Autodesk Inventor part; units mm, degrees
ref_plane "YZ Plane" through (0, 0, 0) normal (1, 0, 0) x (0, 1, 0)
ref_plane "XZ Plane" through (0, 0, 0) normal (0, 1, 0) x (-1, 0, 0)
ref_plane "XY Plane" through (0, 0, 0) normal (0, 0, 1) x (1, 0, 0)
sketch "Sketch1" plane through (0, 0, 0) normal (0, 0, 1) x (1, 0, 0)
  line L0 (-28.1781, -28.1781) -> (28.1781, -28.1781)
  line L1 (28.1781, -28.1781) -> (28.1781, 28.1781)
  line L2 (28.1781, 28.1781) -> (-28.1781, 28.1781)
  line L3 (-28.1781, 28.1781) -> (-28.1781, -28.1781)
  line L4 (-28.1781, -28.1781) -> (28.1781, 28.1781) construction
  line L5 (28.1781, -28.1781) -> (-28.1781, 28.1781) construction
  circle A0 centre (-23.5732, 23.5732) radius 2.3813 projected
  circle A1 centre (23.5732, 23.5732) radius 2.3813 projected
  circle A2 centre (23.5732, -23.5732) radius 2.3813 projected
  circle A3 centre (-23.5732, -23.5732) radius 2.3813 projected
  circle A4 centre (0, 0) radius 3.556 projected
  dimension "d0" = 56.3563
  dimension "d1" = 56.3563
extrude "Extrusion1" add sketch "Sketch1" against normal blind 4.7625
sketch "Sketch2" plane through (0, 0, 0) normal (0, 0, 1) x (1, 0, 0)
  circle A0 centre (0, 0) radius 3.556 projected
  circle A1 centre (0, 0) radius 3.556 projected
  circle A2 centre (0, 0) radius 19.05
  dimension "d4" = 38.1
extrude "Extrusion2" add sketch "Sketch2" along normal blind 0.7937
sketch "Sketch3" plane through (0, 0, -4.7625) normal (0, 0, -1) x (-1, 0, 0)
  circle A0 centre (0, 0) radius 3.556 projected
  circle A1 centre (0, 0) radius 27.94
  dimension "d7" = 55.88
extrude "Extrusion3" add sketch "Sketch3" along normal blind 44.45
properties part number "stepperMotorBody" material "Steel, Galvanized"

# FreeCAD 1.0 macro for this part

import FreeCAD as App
import Part
import Sketcher

V = App.Vector
Q = App.Units.Quantity


def add_polygon(sketch, points):
    """Adds a closed chain of lines whose ends are joined by coincident constraints."""
    first, n = sketch.GeometryCount, len(points)
    for a, b in zip(points, points[1:] + points[:1]):
        sketch.addGeometry(Part.LineSegment(App.Vector(*a, 0), App.Vector(*b, 0)), False)
    for i in range(n):
        sketch.addConstraint(Sketcher.Constraint("Coincident", first + i, 2, first + (i + 1) % n, 1))

doc = App.newDocument("Part")
body = doc.addObject("PartDesign::Body", "Body")

# Sketch on XY plane
sketch1 = doc.addObject("Sketcher::SketchObject", "Sketch")
body.addObject(sketch1)
sketch1.AttachmentSupport = (doc.XY_Plane, [""])
sketch1.MapMode = "FlatFace"
add_polygon(sketch1, [(-28.1781, 28.1781), (-28.1781, -28.1781), (28.1781, -28.1781), (28.1781, 28.1781)])  # lines 0-3
sketch1.addGeometry(Part.Circle(V(-23.5732, -23.5732, 0), V(0, 0, 1), 2.3813), False)  # 4
sketch1.addGeometry(Part.Circle(V(23.5732, -23.5732, 0), V(0, 0, 1), 2.3813), False)  # 5
sketch1.addGeometry(Part.Circle(V(-23.5732, 23.5732, 0), V(0, 0, 1), 2.3813), False)  # 6
sketch1.addGeometry(Part.Circle(V(0, 0, 0), V(0, 0, 1), 3.556), False)  # 7
sketch1.addGeometry(Part.Circle(V(23.5732, 23.5732, 0), V(0, 0, 1), 2.3813), False)  # 8
sketch1.addConstraint(Sketcher.Constraint("Vertical", 0))
sketch1.addConstraint(Sketcher.Constraint("Horizontal", 1))
sketch1.addConstraint(Sketcher.Constraint("Vertical", 2))
sketch1.addConstraint(Sketcher.Constraint("Horizontal", 3))
sketch1.addConstraint(Sketcher.Constraint("Coincident", 7, 3, -1, 1))
sketch1.addConstraint(Sketcher.Constraint("Equal", 4, 5))
sketch1.addConstraint(Sketcher.Constraint("Equal", 5, 6))
sketch1.addConstraint(Sketcher.Constraint("Equal", 6, 8))
sketch1.addConstraint(Sketcher.Constraint("Symmetric", 5, 3, 6, 3, -1, 1))
sketch1.addConstraint(Sketcher.Constraint("Symmetric", 4, 3, 8, 3, -1, 1))
sketch1.addConstraint(Sketcher.Constraint("Symmetric", 0, 2, 2, 2, -1, 1))
sketch1.addConstraint(Sketcher.Constraint("Symmetric", 4, 3, 5, 3, -2))
sketch1.addConstraint(Sketcher.Constraint("Equal", 3, 0))
sketch1.addConstraint(Sketcher.Constraint("Diameter", 7, Q("0.28 in")))
sketch1.addConstraint(Sketcher.Constraint("DistanceX", 1, 1, 1, 2, Q("2.218748 in")))
sketch1.addConstraint(Sketcher.Constraint("Diameter", 4, Q("0.1875 in")))
sketch1.addConstraint(Sketcher.Constraint("DistanceX", 0, 2, 4, 3, Q("0.1813 in")))
sketch1.addConstraint(Sketcher.Constraint("DistanceY", 0, 2, 4, 3, Q("0.1813 in")))
pad1 = doc.addObject("PartDesign::Pad", "Pad")
body.addObject(pad1)
pad1.Profile = sketch1
pad1.Length = Q("0.1875 in")
pad1.Reversed = True

# Sketch on XY plane
sketch2 = doc.addObject("Sketcher::SketchObject", "Sketch001")
body.addObject(sketch2)
sketch2.AttachmentSupport = (doc.XY_Plane, [""])
sketch2.MapMode = "FlatFace"
sketch2.addGeometry(Part.Circle(V(0, 0, 0), V(0, 0, 1), 19.05), False)
sketch2.addGeometry(Part.Circle(V(0, 0, 0), V(0, 0, 1), 3.556), False)
sketch2.addConstraint(Sketcher.Constraint("Coincident", 0, 3, -1, 1))
sketch2.addConstraint(Sketcher.Constraint("Coincident", 1, 3, -1, 1))
sketch2.addConstraint(Sketcher.Constraint("Diameter", 0, Q("1.5 in")))
sketch2.addConstraint(Sketcher.Constraint("Diameter", 1, Q("0.28 in")))
pad2 = doc.addObject("PartDesign::Pad", "Pad001")
body.addObject(pad2)
pad2.Profile = sketch2
pad2.Length = Q("0.031248 in")

# Sketch on XY plane
sketch3 = doc.addObject("Sketcher::SketchObject", "Sketch002")
body.addObject(sketch3)
sketch3.AttachmentSupport = (doc.XY_Plane, [""])
sketch3.MapMode = "FlatFace"
sketch3.AttachmentOffset = App.Placement(V(0, 0, -0.1875 * 25.4), App.Rotation())
sketch3.addGeometry(Part.Circle(V(0, 0, 0), V(0, 0, 1), 27.94), False)
sketch3.addGeometry(Part.Circle(V(0, 0, 0), V(0, 0, 1), 3.556), False)
sketch3.addConstraint(Sketcher.Constraint("Coincident", 0, 3, -1, 1))
sketch3.addConstraint(Sketcher.Constraint("Coincident", 1, 3, -1, 1))
sketch3.addConstraint(Sketcher.Constraint("Diameter", 0, Q("2.2 in")))
sketch3.addConstraint(Sketcher.Constraint("Diameter", 1, Q("0.28 in")))
pad3 = doc.addObject("PartDesign::Pad", "Pad002")
body.addObject(pad3)
pad3.Profile = sketch3
pad3.Length = Q("1.75 in")
pad3.Reversed = True

doc.recompute()
